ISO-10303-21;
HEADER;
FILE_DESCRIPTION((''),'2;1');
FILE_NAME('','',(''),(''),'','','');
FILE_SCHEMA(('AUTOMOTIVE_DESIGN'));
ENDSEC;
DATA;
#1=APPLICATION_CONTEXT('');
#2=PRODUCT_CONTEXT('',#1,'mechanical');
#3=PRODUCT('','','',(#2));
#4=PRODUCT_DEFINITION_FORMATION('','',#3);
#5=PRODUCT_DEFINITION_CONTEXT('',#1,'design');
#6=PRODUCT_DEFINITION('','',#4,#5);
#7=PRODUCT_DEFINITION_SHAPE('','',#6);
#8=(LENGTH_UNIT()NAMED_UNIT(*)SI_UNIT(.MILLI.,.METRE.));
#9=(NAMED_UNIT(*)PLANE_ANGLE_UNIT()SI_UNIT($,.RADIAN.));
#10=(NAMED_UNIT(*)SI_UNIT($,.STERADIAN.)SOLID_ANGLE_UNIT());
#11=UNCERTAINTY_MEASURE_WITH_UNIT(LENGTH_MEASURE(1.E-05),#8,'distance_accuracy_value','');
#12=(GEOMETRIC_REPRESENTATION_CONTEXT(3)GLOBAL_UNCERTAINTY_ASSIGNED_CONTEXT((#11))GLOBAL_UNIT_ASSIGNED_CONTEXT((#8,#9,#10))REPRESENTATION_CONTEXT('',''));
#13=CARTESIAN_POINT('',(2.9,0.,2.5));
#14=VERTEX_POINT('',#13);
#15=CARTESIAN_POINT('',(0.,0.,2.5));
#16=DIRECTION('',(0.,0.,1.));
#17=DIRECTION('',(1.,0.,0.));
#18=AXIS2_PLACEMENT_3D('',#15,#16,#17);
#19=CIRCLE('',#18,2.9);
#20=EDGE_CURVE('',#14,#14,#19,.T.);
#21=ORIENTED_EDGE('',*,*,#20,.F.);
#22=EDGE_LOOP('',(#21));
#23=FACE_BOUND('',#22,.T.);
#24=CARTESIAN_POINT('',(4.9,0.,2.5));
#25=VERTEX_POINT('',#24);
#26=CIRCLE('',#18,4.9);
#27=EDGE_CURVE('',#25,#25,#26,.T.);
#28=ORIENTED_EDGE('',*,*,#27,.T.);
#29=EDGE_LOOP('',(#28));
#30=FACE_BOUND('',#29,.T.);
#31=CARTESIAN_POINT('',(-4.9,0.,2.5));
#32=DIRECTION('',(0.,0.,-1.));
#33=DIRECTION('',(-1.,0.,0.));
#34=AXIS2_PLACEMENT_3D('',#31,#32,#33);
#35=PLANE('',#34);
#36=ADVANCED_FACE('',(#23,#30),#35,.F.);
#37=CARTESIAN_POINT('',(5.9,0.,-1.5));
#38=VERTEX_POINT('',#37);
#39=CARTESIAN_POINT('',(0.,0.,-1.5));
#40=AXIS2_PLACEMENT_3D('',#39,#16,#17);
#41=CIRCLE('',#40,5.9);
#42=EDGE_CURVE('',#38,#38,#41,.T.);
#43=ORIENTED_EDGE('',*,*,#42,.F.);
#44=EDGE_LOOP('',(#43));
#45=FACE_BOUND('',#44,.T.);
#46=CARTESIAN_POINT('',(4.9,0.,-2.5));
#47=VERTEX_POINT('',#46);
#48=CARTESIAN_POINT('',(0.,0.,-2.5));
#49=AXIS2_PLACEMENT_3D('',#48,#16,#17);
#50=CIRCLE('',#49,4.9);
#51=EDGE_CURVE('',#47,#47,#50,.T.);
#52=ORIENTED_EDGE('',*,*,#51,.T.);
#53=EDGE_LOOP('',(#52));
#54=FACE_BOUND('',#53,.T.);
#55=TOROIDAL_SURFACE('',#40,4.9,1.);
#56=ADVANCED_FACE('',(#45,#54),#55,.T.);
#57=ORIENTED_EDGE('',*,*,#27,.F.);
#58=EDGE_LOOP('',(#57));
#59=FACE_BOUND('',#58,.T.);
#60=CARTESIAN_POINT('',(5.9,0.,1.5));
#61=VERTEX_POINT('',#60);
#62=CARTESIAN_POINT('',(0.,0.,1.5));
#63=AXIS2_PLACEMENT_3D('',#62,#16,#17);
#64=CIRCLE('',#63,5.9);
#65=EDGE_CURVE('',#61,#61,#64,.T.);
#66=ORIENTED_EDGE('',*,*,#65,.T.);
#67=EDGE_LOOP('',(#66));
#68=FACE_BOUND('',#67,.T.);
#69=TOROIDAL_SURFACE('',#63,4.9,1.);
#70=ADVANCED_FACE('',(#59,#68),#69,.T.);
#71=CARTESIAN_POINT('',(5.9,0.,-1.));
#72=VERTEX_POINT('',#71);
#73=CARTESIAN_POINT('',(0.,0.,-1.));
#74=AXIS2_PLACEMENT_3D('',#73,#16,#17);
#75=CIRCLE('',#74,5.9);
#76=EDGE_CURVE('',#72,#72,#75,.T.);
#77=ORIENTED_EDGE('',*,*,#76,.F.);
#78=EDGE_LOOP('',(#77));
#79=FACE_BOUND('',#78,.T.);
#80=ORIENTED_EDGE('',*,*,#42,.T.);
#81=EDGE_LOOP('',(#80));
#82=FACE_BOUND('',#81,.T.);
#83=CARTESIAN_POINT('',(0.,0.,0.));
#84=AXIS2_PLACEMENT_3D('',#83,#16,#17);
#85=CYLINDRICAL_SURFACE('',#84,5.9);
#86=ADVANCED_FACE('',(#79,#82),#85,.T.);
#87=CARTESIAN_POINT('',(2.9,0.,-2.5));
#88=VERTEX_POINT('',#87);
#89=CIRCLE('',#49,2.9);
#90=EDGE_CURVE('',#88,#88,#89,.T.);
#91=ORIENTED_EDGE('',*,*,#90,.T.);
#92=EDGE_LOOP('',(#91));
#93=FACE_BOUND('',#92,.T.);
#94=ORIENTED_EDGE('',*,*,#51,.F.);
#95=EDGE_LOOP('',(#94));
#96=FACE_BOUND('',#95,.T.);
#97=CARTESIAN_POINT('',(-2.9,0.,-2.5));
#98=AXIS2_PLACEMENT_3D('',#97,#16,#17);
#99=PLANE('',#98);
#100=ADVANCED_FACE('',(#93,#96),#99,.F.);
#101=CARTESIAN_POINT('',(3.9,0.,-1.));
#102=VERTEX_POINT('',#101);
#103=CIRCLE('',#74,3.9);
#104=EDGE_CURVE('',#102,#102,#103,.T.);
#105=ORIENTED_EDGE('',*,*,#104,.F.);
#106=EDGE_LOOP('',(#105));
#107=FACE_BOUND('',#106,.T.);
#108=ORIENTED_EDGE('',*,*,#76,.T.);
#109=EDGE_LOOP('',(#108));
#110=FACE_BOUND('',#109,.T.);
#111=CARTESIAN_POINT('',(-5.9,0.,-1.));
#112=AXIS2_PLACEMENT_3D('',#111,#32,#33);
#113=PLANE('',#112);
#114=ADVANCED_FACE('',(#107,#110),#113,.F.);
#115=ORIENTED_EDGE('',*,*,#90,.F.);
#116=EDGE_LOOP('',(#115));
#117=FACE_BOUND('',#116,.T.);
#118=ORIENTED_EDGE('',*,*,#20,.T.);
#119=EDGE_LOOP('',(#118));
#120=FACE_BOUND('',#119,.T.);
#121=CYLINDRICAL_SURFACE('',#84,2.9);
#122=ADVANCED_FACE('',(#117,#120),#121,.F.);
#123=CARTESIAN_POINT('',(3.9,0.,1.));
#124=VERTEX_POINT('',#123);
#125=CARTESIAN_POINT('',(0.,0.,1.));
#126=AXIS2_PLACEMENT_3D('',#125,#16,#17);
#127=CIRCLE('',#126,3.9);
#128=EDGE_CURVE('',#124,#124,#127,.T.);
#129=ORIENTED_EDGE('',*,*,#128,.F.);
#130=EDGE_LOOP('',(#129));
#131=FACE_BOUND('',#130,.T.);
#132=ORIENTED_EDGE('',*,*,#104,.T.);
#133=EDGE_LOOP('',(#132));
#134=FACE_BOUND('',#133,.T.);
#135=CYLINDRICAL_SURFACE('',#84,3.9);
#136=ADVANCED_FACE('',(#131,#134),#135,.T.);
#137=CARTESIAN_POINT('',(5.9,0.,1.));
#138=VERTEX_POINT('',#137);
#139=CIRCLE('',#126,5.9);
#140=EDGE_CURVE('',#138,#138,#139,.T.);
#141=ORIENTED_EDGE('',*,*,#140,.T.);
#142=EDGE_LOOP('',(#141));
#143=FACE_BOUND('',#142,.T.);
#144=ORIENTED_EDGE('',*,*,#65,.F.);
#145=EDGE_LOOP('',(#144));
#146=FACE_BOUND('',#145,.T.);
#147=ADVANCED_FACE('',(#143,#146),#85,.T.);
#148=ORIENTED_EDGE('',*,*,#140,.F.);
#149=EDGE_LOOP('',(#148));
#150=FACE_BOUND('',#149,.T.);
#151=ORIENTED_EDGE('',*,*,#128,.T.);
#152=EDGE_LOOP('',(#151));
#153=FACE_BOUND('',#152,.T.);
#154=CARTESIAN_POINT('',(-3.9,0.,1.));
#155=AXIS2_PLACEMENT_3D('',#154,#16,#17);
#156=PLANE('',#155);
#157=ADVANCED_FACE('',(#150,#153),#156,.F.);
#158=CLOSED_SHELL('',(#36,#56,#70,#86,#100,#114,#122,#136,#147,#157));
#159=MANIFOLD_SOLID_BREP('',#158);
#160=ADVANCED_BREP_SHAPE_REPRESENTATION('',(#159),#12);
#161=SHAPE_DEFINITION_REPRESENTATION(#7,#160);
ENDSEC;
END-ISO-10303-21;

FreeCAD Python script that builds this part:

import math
import FreeCAD as App
import Part
import Sketcher
from FreeCAD import Vector

doc = App.newDocument("Part")
body = doc.addObject("PartDesign::Body", "Body")

sketch1 = doc.addObject("Sketcher::SketchObject", "Sketch")
body.addObject(sketch1)
sketch1.AttachmentSupport = (doc.XZ_Plane, [""])
sketch1.MapMode = "FlatFace"
sketch1.addGeometry(Part.LineSegment(Vector(-2.9, 2.5, 0), Vector(-2.9, -2.5, 0)), False)
sketch1.addGeometry(Part.LineSegment(Vector(-2.9, -2.5, 0), Vector(-4.9, -2.5, 0)), False)
sketch1.addGeometry(Part.ArcOfCircle(Part.Circle(Vector(-4.9, -1.5, 0), Vector(0, 0, 1), 1), math.radians(-180), math.radians(-90)), False)
sketch1.addGeometry(Part.LineSegment(Vector(-5.9, -1.5, 0), Vector(-5.9, -1, 0)), False)
sketch1.addGeometry(Part.LineSegment(Vector(-5.9, -1, 0), Vector(-3.9, -1, 0)), False)
sketch1.addGeometry(Part.LineSegment(Vector(-3.9, -1, 0), Vector(-3.9, 1, 0)), False)
sketch1.addGeometry(Part.LineSegment(Vector(-3.9, 1, 0), Vector(-5.9, 1, 0)), False)
sketch1.addGeometry(Part.LineSegment(Vector(-5.9, 1, 0), Vector(-5.9, 1.5, 0)), False)
sketch1.addGeometry(Part.ArcOfCircle(Part.Circle(Vector(-4.9, 1.5, 0), Vector(0, 0, 1), 1), math.radians(90), math.radians(180)), False)
sketch1.addGeometry(Part.LineSegment(Vector(-4.9, 2.5, 0), Vector(-2.9, 2.5, 0)), False)
sketch1.addConstraint(Sketcher.Constraint("Coincident", 0, 2, 1, 1))
sketch1.addConstraint(Sketcher.Constraint("Tangent", 1, 2, 2, 2))
sketch1.addConstraint(Sketcher.Constraint("Tangent", 2, 1, 3, 1))
sketch1.addConstraint(Sketcher.Constraint("Coincident", 3, 2, 4, 1))
sketch1.addConstraint(Sketcher.Constraint("Coincident", 4, 2, 5, 1))
sketch1.addConstraint(Sketcher.Constraint("Coincident", 5, 2, 6, 1))
sketch1.addConstraint(Sketcher.Constraint("Coincident", 6, 2, 7, 1))
sketch1.addConstraint(Sketcher.Constraint("Tangent", 7, 2, 8, 2))
sketch1.addConstraint(Sketcher.Constraint("Tangent", 8, 1, 9, 1))
sketch1.addConstraint(Sketcher.Constraint("Coincident", 9, 2, 0, 1))
sketch1.addConstraint(Sketcher.Constraint("Vertical", 0))
sketch1.addConstraint(Sketcher.Constraint("Horizontal", 1))
sketch1.addConstraint(Sketcher.Constraint("Vertical", 3))
sketch1.addConstraint(Sketcher.Constraint("Horizontal", 4))
sketch1.addConstraint(Sketcher.Constraint("Vertical", 5))
sketch1.addConstraint(Sketcher.Constraint("Horizontal", 6))
sketch1.addConstraint(Sketcher.Constraint("Vertical", 7))
sketch1.addConstraint(Sketcher.Constraint("Horizontal", 9))
sketch1.addConstraint(Sketcher.Constraint("Equal", 2, 8))
sketch1.addConstraint(Sketcher.Constraint("Symmetric", 2, 3, 8, 3, -1))
sketch1.addConstraint(Sketcher.Constraint("Equal", 1, 4))
sketch1.addConstraint(Sketcher.Constraint("Equal", 9, 5))
sketch1.addConstraint(Sketcher.Constraint("Equal", 3, 7))
sketch1.addConstraint(Sketcher.Constraint("Radius", 2, 1.0))
sketch1.addConstraint(Sketcher.Constraint("DistanceX", 1, 2, 1, 1, 2.0))
sketch1.addConstraint(Sketcher.Constraint("DistanceY", 0, 2, 0, 1, 5.0))
sketch1.addConstraint(Sketcher.Constraint("DistanceX", 2, 3, -1, 1, 4.9))
revolution = doc.addObject("PartDesign::Revolution", "Revolution")
body.addObject(revolution)
revolution.Profile = sketch1
revolution.ReferenceAxis = (sketch1, ["V_Axis"])
revolution.Angle = 360

doc.recompute()
